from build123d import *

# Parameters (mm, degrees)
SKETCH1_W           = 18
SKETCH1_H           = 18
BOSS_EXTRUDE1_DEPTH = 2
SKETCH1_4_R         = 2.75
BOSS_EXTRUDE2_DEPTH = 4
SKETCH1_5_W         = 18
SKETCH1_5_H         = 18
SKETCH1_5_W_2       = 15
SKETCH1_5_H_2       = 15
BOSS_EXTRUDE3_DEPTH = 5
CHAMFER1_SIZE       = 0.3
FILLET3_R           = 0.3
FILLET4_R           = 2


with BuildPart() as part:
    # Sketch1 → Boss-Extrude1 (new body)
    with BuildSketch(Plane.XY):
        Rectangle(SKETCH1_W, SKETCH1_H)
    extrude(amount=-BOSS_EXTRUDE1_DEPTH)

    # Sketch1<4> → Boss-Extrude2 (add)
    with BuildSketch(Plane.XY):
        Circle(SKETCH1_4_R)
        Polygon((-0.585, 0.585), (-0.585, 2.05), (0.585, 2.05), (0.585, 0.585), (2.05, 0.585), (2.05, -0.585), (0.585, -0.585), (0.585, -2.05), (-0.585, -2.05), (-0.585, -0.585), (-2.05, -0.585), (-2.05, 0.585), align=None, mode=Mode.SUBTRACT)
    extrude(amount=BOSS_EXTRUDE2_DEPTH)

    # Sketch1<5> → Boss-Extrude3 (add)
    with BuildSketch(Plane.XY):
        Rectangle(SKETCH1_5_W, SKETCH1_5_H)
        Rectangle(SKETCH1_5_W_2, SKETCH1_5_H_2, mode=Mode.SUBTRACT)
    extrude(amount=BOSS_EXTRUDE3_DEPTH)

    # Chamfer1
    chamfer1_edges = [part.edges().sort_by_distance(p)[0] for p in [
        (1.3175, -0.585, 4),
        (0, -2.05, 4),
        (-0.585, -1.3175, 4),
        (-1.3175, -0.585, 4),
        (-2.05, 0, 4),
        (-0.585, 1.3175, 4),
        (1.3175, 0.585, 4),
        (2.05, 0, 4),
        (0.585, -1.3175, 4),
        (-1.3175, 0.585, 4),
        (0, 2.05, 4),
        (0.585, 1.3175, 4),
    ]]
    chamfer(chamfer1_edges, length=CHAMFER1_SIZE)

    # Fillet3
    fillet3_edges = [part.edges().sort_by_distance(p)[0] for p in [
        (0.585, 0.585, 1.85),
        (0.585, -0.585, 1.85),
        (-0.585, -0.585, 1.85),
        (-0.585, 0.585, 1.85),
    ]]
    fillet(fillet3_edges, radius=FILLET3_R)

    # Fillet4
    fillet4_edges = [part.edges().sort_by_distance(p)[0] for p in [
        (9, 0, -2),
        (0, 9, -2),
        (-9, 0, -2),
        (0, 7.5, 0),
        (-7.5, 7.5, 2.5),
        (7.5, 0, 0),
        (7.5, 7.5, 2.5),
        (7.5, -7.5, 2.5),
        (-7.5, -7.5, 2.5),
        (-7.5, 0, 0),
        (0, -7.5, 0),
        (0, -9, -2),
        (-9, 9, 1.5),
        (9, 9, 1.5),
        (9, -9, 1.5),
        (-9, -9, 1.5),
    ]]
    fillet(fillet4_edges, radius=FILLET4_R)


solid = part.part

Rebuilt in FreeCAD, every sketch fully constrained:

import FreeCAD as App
import Part
import Sketcher

V = App.Vector
Q = App.Units.Quantity


def edges_at(feature, points):
    """Names of the edges that pass closest to the given points."""
    edges = feature.Shape.Edges
    near = lambda p: min(range(len(edges)), key=lambda i: edges[i].distToShape(Part.Vertex(*p))[0])
    return sorted({f"Edge{near(p) + 1}" for p in points})

doc = App.newDocument("Part")
body = doc.addObject("PartDesign::Body", "Body")

# Sketch on XY plane
sketch1 = doc.addObject("Sketcher::SketchObject", "Sketch")
body.addObject(sketch1)
sketch1.AttachmentSupport = (doc.XY_Plane, [""])
sketch1.MapMode = "FlatFace"
sketch1.addGeometry(Part.LineSegment(V(-9, 9, 0), V(-9, -9, 0)), False)
sketch1.addGeometry(Part.LineSegment(V(-9, -9, 0), V(9, -9, 0)), False)
sketch1.addGeometry(Part.LineSegment(V(9, -9, 0), V(9, 9, 0)), False)
sketch1.addGeometry(Part.LineSegment(V(9, 9, 0), V(-9, 9, 0)), False)
sketch1.addConstraint(Sketcher.Constraint("Coincident", 0, 2, 1, 1))
sketch1.addConstraint(Sketcher.Constraint("Coincident", 1, 2, 2, 1))
sketch1.addConstraint(Sketcher.Constraint("Coincident", 2, 2, 3, 1))
sketch1.addConstraint(Sketcher.Constraint("Coincident", 3, 2, 0, 1))
sketch1.addConstraint(Sketcher.Constraint("Vertical", 0))
sketch1.addConstraint(Sketcher.Constraint("Horizontal", 1))
sketch1.addConstraint(Sketcher.Constraint("Vertical", 2))
sketch1.addConstraint(Sketcher.Constraint("Horizontal", 3))
sketch1.addConstraint(Sketcher.Constraint("Symmetric", 0, 2, 2, 2, -1, 1))
sketch1.addConstraint(Sketcher.Constraint("Equal", 3, 0))
sketch1.addConstraint(Sketcher.Constraint("DistanceX", 1, 1, 1, 2, Q("18 mm")))
pad1 = doc.addObject("PartDesign::Pad", "Pad")
body.addObject(pad1)
pad1.Profile = sketch1
pad1.Length = 2
pad1.Reversed = True

# Sketch on XY plane
sketch2 = doc.addObject("Sketcher::SketchObject", "Sketch001")
body.addObject(sketch2)
sketch2.AttachmentSupport = (doc.XY_Plane, [""])
sketch2.MapMode = "FlatFace"
sketch2.addGeometry(Part.Circle(V(0, 0, 0), V(0, 0, 1), 2.75), False)
sketch2.addGeometry(Part.LineSegment(V(-2.05, 0.585, 0), V(-0.585, 0.585, 0)), False)
sketch2.addGeometry(Part.LineSegment(V(-0.585, 0.585, 0), V(-0.585, 2.05, 0)), False)
sketch2.addGeometry(Part.LineSegment(V(-0.585, 2.05, 0), V(0.585, 2.05, 0)), False)
sketch2.addGeometry(Part.LineSegment(V(0.585, 2.05, 0), V(0.585, 0.585, 0)), False)
sketch2.addGeometry(Part.LineSegment(V(0.585, 0.585, 0), V(2.05, 0.585, 0)), False)
sketch2.addGeometry(Part.LineSegment(V(2.05, 0.585, 0), V(2.05, -0.585, 0)), False)
sketch2.addGeometry(Part.LineSegment(V(2.05, -0.585, 0), V(0.585, -0.585, 0)), False)
sketch2.addGeometry(Part.LineSegment(V(0.585, -0.585, 0), V(0.585, -2.05, 0)), False)
sketch2.addGeometry(Part.LineSegment(V(0.585, -2.05, 0), V(-0.585, -2.05, 0)), False)
sketch2.addGeometry(Part.LineSegment(V(-0.585, -2.05, 0), V(-0.585, -0.585, 0)), False)
sketch2.addGeometry(Part.LineSegment(V(-0.585, -0.585, 0), V(-2.05, -0.585, 0)), False)
sketch2.addGeometry(Part.LineSegment(V(-2.05, -0.585, 0), V(-2.05, 0.585, 0)), False)
sketch2.addConstraint(Sketcher.Constraint("Coincident", 1, 2, 2, 1))
sketch2.addConstraint(Sketcher.Constraint("Coincident", 2, 2, 3, 1))
sketch2.addConstraint(Sketcher.Constraint("Coincident", 3, 2, 4, 1))
sketch2.addConstraint(Sketcher.Constraint("Coincident", 4, 2, 5, 1))
sketch2.addConstraint(Sketcher.Constraint("Coincident", 5, 2, 6, 1))
sketch2.addConstraint(Sketcher.Constraint("Coincident", 6, 2, 7, 1))
sketch2.addConstraint(Sketcher.Constraint("Coincident", 7, 2, 8, 1))
sketch2.addConstraint(Sketcher.Constraint("Coincident", 8, 2, 9, 1))
sketch2.addConstraint(Sketcher.Constraint("Coincident", 9, 2, 10, 1))
sketch2.addConstraint(Sketcher.Constraint("Coincident", 10, 2, 11, 1))
sketch2.addConstraint(Sketcher.Constraint("Coincident", 11, 2, 12, 1))
sketch2.addConstraint(Sketcher.Constraint("Coincident", 12, 2, 1, 1))
sketch2.addConstraint(Sketcher.Constraint("Horizontal", 1))
sketch2.addConstraint(Sketcher.Constraint("Vertical", 2))
sketch2.addConstraint(Sketcher.Constraint("Horizontal", 3))
sketch2.addConstraint(Sketcher.Constraint("Vertical", 4))
sketch2.addConstraint(Sketcher.Constraint("Horizontal", 5))
sketch2.addConstraint(Sketcher.Constraint("Vertical", 6))
sketch2.addConstraint(Sketcher.Constraint("Horizontal", 7))
sketch2.addConstraint(Sketcher.Constraint("Vertical", 8))
sketch2.addConstraint(Sketcher.Constraint("Horizontal", 9))
sketch2.addConstraint(Sketcher.Constraint("Vertical", 10))
sketch2.addConstraint(Sketcher.Constraint("Horizontal", 11))
sketch2.addConstraint(Sketcher.Constraint("Vertical", 12))
sketch2.addConstraint(Sketcher.Constraint("Coincident", 0, 3, -1, 1))
sketch2.addConstraint(Sketcher.Constraint("Symmetric", 1, 2, 7, 2, -1, 1))
sketch2.addConstraint(Sketcher.Constraint("Symmetric", 3, 2, 9, 2, -1, 1))
sketch2.addConstraint(Sketcher.Constraint("Symmetric", 5, 2, 11, 2, -1, 1))
sketch2.addConstraint(Sketcher.Constraint("Symmetric", 1, 2, 4, 2, -2))
sketch2.addConstraint(Sketcher.Constraint("Equal", 11, 2))
sketch2.addConstraint(Sketcher.Constraint("Equal", 9, 6))
sketch2.addConstraint(Sketcher.Constraint("Diameter", 0, Q("5.5 mm")))
sketch2.addConstraint(Sketcher.Constraint("DistanceX", 3, 1, 3, 2, Q("1.17 mm")))
sketch2.addConstraint(Sketcher.Constraint("DistanceX", 1, 1, 1, 2, Q("1.465 mm")))
pad2 = doc.addObject("PartDesign::Pad", "Pad001")
body.addObject(pad2)
pad2.Profile = sketch2
pad2.Length = 4

# Sketch on XY plane
sketch3 = doc.addObject("Sketcher::SketchObject", "Sketch002")
body.addObject(sketch3)
sketch3.AttachmentSupport = (doc.XY_Plane, [""])
sketch3.MapMode = "FlatFace"
sketch3.addGeometry(Part.LineSegment(V(-9, 9, 0), V(-9, -9, 0)), False)
sketch3.addGeometry(Part.LineSegment(V(-9, -9, 0), V(9, -9, 0)), False)
sketch3.addGeometry(Part.LineSegment(V(9, -9, 0), V(9, 9, 0)), False)
sketch3.addGeometry(Part.LineSegment(V(9, 9, 0), V(-9, 9, 0)), False)
sketch3.addGeometry(Part.LineSegment(V(7.5, -7.5, 0), V(-7.5, -7.5, 0)), False)
sketch3.addGeometry(Part.LineSegment(V(-7.5, -7.5, 0), V(-7.5, 7.5, 0)), False)
sketch3.addGeometry(Part.LineSegment(V(-7.5, 7.5, 0), V(7.5, 7.5, 0)), False)
sketch3.addGeometry(Part.LineSegment(V(7.5, 7.5, 0), V(7.5, -7.5, 0)), False)
sketch3.addConstraint(Sketcher.Constraint("Coincident", 0, 2, 1, 1))
sketch3.addConstraint(Sketcher.Constraint("Coincident", 1, 2, 2, 1))
sketch3.addConstraint(Sketcher.Constraint("Coincident", 2, 2, 3, 1))
sketch3.addConstraint(Sketcher.Constraint("Coincident", 3, 2, 0, 1))
sketch3.addConstraint(Sketcher.Constraint("Coincident", 4, 2, 5, 1))
sketch3.addConstraint(Sketcher.Constraint("Coincident", 5, 2, 6, 1))
sketch3.addConstraint(Sketcher.Constraint("Coincident", 6, 2, 7, 1))
sketch3.addConstraint(Sketcher.Constraint("Coincident", 7, 2, 4, 1))
sketch3.addConstraint(Sketcher.Constraint("Vertical", 0))
sketch3.addConstraint(Sketcher.Constraint("Horizontal", 1))
sketch3.addConstraint(Sketcher.Constraint("Vertical", 2))
sketch3.addConstraint(Sketcher.Constraint("Horizontal", 3))
sketch3.addConstraint(Sketcher.Constraint("Horizontal", 4))
sketch3.addConstraint(Sketcher.Constraint("Vertical", 5))
sketch3.addConstraint(Sketcher.Constraint("Horizontal", 6))
sketch3.addConstraint(Sketcher.Constraint("Vertical", 7))
sketch3.addConstraint(Sketcher.Constraint("Symmetric", 0, 2, 2, 2, -1, 1))
sketch3.addConstraint(Sketcher.Constraint("Symmetric", 4, 2, 6, 2, -1, 1))
sketch3.addConstraint(Sketcher.Constraint("Equal", 3, 0))
sketch3.addConstraint(Sketcher.Constraint("Equal", 6, 5))
sketch3.addConstraint(Sketcher.Constraint("DistanceX", 1, 1, 1, 2, Q("18 mm")))
sketch3.addConstraint(Sketcher.Constraint("DistanceX", 4, 2, 4, 1, Q("15 mm")))
pad3 = doc.addObject("PartDesign::Pad", "Pad002")
body.addObject(pad3)
pad3.Profile = sketch3
pad3.Length = 5
doc.recompute()

chamfer = doc.addObject("PartDesign::Chamfer", "Chamfer")
body.addObject(chamfer)
chamfer.Base = (pad3, edges_at(pad3, [
    (1.317, -0.585, 4),
    (0, -2.05, 4),
    (-0.585, -1.317, 4),
    (-1.317, -0.585, 4),
    (-2.05, 0, 4),
    (-0.585, 1.317, 4),
    (1.317, 0.585, 4),
    (2.05, 0, 4),
    (0.585, -1.317, 4),
    (-1.317, 0.585, 4),
    (0, 2.05, 4),
    (0.585, 1.317, 4),
]))
chamfer.Size = 0.3
doc.recompute()

fillet = doc.addObject("PartDesign::Fillet", "Fillet")
body.addObject(fillet)
fillet.Base = (chamfer, edges_at(chamfer, [
    (0.585, 0.585, 1.85),
    (0.585, -0.585, 1.85),
    (-0.585, -0.585, 1.85),
    (-0.585, 0.585, 1.85),
]))
fillet.Radius = 0.3
doc.recompute()

fillet2 = doc.addObject("PartDesign::Fillet", "Fillet001")
body.addObject(fillet2)
fillet2.Base = (fillet, edges_at(fillet, [
    (9, 0, -2),
    (0, 9, -2),
    (-9, 0, -2),
    (0, 7.5, 0),
    (-7.5, 7.5, 2.5),
    (7.5, 0, 0),
    (7.5, 7.5, 2.5),
    (7.5, -7.5, 2.5),
    (-7.5, -7.5, 2.5),
    (-7.5, 0, 0),
    (0, -7.5, 0),
    (0, -9, -2),
    (-9, 9, 1.5),
    (9, 9, 1.5),
    (9, -9, 1.5),
    (-9, -9, 1.5),
]))
fillet2.Radius = 2

doc.recompute()
